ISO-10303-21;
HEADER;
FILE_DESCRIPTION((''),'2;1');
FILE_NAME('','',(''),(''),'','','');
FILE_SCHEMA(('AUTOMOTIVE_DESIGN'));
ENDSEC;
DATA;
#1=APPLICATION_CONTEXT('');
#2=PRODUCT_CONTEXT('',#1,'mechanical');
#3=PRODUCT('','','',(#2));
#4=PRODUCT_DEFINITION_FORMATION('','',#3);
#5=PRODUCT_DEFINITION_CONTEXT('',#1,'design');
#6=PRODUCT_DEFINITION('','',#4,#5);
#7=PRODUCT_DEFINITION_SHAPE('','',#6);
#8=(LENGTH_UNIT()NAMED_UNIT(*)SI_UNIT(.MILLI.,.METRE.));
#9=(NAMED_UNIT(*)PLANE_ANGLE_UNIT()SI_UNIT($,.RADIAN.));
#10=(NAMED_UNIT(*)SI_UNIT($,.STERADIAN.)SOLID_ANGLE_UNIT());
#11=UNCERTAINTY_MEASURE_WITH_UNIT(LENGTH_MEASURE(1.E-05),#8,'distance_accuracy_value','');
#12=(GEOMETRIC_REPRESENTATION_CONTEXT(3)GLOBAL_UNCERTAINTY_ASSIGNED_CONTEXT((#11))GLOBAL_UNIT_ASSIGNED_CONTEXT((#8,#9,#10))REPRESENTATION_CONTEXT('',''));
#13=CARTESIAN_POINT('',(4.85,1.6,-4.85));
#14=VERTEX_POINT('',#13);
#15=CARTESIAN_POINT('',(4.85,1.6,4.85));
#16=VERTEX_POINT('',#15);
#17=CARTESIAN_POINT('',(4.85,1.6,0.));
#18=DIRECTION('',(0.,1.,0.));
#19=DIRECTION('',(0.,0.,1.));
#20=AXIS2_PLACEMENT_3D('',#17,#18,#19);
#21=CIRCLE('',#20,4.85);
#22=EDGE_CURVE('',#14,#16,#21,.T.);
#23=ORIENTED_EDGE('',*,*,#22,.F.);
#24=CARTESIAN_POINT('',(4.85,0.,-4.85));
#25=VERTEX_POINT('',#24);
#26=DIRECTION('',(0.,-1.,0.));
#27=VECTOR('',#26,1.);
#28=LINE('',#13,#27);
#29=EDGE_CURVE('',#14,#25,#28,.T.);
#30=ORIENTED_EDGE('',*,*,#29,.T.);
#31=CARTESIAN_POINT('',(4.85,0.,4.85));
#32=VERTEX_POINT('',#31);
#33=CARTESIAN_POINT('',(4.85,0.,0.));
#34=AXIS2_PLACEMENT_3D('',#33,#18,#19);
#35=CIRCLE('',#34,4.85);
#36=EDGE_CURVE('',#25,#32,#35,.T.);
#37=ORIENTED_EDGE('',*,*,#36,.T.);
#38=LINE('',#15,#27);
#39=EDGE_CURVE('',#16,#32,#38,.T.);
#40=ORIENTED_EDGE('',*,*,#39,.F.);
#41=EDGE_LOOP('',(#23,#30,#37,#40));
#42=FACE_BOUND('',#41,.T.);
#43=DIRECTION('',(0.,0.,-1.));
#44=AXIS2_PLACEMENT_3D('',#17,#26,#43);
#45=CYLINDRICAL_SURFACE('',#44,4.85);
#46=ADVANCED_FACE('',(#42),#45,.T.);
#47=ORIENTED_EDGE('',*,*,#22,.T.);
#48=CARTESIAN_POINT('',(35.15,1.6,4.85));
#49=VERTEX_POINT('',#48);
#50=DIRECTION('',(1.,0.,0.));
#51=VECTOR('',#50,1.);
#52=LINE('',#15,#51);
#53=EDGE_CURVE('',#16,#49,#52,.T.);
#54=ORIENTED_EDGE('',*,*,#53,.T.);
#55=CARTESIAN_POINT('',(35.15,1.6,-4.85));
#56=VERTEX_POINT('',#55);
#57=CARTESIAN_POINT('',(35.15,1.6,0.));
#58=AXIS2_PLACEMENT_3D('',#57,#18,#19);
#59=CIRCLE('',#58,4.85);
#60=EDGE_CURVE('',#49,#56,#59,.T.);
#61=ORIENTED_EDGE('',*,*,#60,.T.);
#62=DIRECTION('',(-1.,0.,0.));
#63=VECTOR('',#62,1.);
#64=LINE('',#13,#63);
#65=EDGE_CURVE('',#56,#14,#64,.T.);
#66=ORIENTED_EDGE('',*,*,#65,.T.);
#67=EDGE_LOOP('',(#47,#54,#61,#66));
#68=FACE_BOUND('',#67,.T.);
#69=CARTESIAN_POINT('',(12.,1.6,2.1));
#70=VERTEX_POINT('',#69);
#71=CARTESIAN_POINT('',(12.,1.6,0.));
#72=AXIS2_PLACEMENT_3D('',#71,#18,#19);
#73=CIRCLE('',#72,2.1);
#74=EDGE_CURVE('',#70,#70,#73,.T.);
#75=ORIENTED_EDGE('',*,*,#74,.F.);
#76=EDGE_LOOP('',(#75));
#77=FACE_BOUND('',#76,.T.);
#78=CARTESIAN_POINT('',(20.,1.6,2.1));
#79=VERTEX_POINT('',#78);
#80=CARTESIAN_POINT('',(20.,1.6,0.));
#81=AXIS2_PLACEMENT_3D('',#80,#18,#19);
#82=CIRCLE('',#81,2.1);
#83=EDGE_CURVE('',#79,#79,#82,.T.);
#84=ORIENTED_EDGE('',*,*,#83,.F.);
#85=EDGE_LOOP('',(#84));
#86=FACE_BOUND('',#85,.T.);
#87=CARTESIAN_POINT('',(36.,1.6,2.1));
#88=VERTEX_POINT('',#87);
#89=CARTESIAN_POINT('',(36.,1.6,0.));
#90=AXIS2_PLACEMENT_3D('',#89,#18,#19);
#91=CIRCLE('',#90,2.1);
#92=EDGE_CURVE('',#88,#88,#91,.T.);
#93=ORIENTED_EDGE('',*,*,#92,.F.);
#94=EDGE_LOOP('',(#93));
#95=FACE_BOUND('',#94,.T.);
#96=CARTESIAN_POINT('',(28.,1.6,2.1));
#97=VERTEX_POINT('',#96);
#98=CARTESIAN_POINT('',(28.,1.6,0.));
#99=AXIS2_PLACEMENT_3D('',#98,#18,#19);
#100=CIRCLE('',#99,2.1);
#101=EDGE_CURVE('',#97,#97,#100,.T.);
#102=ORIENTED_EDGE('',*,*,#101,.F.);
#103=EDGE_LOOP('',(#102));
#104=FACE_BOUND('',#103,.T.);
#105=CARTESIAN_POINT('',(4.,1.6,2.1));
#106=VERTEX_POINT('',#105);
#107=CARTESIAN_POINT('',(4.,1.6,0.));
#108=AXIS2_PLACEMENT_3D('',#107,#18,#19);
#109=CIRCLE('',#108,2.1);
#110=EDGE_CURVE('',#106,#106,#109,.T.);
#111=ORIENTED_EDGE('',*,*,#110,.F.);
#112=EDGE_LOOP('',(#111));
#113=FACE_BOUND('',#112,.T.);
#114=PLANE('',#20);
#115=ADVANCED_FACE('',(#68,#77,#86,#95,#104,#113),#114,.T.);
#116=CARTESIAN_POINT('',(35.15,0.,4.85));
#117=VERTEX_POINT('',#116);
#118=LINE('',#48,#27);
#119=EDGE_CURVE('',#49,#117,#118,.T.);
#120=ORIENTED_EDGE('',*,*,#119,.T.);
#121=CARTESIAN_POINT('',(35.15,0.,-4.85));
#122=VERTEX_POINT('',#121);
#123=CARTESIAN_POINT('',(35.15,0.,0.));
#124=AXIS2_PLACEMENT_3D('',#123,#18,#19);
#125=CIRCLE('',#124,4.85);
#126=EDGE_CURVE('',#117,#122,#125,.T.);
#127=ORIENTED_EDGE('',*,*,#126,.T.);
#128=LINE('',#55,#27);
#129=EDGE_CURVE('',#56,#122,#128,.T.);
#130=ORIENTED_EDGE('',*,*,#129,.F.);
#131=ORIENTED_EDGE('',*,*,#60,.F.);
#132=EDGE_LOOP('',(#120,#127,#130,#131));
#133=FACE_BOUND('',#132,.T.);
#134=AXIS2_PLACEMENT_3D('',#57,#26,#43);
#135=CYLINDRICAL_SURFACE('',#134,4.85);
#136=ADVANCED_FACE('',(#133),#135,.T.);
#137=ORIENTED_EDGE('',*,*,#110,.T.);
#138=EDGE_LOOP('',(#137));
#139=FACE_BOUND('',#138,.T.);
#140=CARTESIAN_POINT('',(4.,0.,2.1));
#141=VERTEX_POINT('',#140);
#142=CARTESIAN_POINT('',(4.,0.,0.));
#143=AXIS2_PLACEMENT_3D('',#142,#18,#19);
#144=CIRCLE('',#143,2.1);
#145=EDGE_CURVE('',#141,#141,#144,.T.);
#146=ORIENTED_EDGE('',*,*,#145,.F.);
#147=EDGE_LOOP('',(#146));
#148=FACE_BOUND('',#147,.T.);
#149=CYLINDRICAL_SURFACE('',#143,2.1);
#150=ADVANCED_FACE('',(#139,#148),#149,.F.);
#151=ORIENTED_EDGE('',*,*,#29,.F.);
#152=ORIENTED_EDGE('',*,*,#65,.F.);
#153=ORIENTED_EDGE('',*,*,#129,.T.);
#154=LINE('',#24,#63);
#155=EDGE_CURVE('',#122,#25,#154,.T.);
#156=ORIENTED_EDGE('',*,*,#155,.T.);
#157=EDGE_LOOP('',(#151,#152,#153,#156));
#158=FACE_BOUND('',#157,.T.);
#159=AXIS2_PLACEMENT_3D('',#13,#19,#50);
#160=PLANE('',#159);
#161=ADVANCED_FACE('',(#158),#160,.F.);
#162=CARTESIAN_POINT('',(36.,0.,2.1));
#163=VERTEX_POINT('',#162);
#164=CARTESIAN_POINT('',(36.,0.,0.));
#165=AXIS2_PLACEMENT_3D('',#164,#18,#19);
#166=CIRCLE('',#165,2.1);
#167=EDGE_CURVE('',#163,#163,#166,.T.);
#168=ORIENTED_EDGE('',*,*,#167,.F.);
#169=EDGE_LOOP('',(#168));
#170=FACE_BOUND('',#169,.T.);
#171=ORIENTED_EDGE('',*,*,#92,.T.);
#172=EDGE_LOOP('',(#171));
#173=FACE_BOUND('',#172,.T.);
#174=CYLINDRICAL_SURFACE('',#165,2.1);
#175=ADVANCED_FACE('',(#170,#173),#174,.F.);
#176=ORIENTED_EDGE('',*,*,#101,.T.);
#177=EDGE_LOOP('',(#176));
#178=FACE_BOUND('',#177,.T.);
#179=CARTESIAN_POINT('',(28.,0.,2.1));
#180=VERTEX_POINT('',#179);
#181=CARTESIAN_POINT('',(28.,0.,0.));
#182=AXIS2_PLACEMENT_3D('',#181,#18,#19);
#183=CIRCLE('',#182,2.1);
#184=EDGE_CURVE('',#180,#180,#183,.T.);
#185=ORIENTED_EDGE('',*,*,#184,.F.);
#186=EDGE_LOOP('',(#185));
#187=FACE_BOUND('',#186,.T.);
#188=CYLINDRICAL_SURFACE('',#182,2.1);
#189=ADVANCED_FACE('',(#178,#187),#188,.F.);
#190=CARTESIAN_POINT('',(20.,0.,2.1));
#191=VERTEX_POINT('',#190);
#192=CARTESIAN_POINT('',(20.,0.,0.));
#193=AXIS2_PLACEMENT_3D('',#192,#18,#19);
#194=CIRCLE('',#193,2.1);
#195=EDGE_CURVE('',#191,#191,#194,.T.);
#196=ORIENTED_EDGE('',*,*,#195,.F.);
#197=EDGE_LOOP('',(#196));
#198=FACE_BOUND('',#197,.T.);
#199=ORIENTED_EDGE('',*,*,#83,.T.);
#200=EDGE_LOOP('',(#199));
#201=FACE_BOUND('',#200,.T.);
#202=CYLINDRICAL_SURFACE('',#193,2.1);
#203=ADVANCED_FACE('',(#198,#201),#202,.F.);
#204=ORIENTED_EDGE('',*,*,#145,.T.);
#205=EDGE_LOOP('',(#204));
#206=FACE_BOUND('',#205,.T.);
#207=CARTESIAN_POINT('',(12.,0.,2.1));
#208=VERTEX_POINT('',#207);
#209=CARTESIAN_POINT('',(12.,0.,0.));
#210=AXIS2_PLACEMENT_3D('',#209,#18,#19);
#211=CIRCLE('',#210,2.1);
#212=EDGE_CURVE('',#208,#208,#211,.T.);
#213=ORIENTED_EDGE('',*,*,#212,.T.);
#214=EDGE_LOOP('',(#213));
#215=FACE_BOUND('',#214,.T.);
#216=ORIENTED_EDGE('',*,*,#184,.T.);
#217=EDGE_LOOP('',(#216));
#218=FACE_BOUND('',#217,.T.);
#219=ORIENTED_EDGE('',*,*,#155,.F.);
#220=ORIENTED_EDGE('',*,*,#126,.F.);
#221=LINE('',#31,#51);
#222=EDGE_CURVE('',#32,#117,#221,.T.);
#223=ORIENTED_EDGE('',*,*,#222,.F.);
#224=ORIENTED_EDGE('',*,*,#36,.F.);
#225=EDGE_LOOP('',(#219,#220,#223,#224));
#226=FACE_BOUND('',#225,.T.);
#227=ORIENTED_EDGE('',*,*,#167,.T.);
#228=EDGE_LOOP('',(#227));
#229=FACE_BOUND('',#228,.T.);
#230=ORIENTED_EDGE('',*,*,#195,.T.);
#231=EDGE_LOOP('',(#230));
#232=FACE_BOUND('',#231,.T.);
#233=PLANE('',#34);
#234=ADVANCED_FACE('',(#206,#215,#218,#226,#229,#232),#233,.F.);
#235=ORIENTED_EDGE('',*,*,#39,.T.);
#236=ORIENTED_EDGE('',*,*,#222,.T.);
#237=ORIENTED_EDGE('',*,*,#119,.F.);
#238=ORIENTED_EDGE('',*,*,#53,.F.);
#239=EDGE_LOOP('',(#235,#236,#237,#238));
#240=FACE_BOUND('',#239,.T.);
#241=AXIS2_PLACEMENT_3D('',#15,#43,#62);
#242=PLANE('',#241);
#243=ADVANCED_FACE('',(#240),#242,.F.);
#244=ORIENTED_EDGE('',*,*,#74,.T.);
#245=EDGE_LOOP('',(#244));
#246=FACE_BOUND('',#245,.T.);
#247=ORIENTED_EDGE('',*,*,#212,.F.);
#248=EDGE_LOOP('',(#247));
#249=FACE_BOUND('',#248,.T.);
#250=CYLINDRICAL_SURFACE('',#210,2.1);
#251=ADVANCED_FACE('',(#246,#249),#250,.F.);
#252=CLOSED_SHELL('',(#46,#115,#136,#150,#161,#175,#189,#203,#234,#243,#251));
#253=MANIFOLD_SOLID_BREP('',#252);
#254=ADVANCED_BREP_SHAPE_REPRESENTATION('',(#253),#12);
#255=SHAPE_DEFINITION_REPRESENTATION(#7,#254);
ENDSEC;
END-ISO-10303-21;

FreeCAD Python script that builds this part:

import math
import FreeCAD as App
import Part
import Sketcher

V = App.Vector

doc = App.newDocument("Part")
body = doc.addObject("PartDesign::Body", "Body")

# Sketch on XZ plane
sketch1 = body.newObject("Sketcher::SketchObject", "Sketch")
sketch1.AttachmentSupport = (doc.getObject("XZ_Plane"), [""])
sketch1.MapMode = "FlatFace"
sketch1.addGeometry([
    Part.LineSegment(V(35.1, -4.8, 0), V(4.8, -4.8, 0)),
    Part.ArcOfCircle(Part.Circle(V(4.8, 0, 0), V(0, 0, 1), 4.8), math.radians(90), math.radians(270)),
    Part.LineSegment(V(4.8, 4.8, 0), V(35.1, 4.8, 0)),
    Part.ArcOfCircle(Part.Circle(V(35.1, 0, 0), V(0, 0, 1), 4.8), math.radians(-90), math.radians(90)),
], False)
sketch1.addConstraint([
    Sketcher.Constraint("Tangent", 0, 2, 1, 2),
    Sketcher.Constraint("Tangent", 1, 1, 2, 1),
    Sketcher.Constraint("Tangent", 2, 2, 3, 2),
    Sketcher.Constraint("Tangent", 3, 1, 0, 1),
    Sketcher.Constraint("Horizontal", 0),
    Sketcher.Constraint("Horizontal", 2),
    Sketcher.Constraint("PointOnObject", 1, 3, -1),
    Sketcher.Constraint("Radius", 1, 4.85),
    Sketcher.Constraint("DistanceX", 0, 2, 0, 1, 30.3),
    Sketcher.Constraint("DistanceX", -1, 1, 1, 3, 4.85),
])
pad1 = body.newObject("PartDesign::Pad", "Pad")
pad1.Profile = sketch1
pad1.Length = 1.6
pad1.Reversed = True

# Sketch on XZ plane
sketch2 = body.newObject("Sketcher::SketchObject", "Sketch001")
sketch2.AttachmentSupport = (doc.getObject("XZ_Plane"), [""])
sketch2.MapMode = "FlatFace"
sketch2.AttachmentOffset = App.Placement(V(0, 0, -1.6), App.Rotation())
sketch2.addGeometry(Part.Circle(V(4, 0, 0), V(0, 0, 1), 2.1), False)
sketch2.addConstraint([
    Sketcher.Constraint("PointOnObject", 0, 3, -1),
    Sketcher.Constraint("Diameter", 0, 4.2),
    Sketcher.Constraint("DistanceX", -1, 1, 0, 3, 4.0),
])
pocket1 = body.newObject("PartDesign::Pocket", "Pocket")
pocket1.Profile = sketch2
pocket1.Type = "ThroughAll"
pocket1.Reversed = True
doc.recompute()

linearpattern = body.newObject("PartDesign::LinearPattern", "LinearPattern")
linearpattern.Originals = [pocket1]
linearpattern.Direction = (doc.getObject("X_Axis"), [""])
linearpattern.Mode = "offset"
linearpattern.Offset = 8
linearpattern.Occurrences = 5
body.Tip = linearpattern

doc.recompute()
